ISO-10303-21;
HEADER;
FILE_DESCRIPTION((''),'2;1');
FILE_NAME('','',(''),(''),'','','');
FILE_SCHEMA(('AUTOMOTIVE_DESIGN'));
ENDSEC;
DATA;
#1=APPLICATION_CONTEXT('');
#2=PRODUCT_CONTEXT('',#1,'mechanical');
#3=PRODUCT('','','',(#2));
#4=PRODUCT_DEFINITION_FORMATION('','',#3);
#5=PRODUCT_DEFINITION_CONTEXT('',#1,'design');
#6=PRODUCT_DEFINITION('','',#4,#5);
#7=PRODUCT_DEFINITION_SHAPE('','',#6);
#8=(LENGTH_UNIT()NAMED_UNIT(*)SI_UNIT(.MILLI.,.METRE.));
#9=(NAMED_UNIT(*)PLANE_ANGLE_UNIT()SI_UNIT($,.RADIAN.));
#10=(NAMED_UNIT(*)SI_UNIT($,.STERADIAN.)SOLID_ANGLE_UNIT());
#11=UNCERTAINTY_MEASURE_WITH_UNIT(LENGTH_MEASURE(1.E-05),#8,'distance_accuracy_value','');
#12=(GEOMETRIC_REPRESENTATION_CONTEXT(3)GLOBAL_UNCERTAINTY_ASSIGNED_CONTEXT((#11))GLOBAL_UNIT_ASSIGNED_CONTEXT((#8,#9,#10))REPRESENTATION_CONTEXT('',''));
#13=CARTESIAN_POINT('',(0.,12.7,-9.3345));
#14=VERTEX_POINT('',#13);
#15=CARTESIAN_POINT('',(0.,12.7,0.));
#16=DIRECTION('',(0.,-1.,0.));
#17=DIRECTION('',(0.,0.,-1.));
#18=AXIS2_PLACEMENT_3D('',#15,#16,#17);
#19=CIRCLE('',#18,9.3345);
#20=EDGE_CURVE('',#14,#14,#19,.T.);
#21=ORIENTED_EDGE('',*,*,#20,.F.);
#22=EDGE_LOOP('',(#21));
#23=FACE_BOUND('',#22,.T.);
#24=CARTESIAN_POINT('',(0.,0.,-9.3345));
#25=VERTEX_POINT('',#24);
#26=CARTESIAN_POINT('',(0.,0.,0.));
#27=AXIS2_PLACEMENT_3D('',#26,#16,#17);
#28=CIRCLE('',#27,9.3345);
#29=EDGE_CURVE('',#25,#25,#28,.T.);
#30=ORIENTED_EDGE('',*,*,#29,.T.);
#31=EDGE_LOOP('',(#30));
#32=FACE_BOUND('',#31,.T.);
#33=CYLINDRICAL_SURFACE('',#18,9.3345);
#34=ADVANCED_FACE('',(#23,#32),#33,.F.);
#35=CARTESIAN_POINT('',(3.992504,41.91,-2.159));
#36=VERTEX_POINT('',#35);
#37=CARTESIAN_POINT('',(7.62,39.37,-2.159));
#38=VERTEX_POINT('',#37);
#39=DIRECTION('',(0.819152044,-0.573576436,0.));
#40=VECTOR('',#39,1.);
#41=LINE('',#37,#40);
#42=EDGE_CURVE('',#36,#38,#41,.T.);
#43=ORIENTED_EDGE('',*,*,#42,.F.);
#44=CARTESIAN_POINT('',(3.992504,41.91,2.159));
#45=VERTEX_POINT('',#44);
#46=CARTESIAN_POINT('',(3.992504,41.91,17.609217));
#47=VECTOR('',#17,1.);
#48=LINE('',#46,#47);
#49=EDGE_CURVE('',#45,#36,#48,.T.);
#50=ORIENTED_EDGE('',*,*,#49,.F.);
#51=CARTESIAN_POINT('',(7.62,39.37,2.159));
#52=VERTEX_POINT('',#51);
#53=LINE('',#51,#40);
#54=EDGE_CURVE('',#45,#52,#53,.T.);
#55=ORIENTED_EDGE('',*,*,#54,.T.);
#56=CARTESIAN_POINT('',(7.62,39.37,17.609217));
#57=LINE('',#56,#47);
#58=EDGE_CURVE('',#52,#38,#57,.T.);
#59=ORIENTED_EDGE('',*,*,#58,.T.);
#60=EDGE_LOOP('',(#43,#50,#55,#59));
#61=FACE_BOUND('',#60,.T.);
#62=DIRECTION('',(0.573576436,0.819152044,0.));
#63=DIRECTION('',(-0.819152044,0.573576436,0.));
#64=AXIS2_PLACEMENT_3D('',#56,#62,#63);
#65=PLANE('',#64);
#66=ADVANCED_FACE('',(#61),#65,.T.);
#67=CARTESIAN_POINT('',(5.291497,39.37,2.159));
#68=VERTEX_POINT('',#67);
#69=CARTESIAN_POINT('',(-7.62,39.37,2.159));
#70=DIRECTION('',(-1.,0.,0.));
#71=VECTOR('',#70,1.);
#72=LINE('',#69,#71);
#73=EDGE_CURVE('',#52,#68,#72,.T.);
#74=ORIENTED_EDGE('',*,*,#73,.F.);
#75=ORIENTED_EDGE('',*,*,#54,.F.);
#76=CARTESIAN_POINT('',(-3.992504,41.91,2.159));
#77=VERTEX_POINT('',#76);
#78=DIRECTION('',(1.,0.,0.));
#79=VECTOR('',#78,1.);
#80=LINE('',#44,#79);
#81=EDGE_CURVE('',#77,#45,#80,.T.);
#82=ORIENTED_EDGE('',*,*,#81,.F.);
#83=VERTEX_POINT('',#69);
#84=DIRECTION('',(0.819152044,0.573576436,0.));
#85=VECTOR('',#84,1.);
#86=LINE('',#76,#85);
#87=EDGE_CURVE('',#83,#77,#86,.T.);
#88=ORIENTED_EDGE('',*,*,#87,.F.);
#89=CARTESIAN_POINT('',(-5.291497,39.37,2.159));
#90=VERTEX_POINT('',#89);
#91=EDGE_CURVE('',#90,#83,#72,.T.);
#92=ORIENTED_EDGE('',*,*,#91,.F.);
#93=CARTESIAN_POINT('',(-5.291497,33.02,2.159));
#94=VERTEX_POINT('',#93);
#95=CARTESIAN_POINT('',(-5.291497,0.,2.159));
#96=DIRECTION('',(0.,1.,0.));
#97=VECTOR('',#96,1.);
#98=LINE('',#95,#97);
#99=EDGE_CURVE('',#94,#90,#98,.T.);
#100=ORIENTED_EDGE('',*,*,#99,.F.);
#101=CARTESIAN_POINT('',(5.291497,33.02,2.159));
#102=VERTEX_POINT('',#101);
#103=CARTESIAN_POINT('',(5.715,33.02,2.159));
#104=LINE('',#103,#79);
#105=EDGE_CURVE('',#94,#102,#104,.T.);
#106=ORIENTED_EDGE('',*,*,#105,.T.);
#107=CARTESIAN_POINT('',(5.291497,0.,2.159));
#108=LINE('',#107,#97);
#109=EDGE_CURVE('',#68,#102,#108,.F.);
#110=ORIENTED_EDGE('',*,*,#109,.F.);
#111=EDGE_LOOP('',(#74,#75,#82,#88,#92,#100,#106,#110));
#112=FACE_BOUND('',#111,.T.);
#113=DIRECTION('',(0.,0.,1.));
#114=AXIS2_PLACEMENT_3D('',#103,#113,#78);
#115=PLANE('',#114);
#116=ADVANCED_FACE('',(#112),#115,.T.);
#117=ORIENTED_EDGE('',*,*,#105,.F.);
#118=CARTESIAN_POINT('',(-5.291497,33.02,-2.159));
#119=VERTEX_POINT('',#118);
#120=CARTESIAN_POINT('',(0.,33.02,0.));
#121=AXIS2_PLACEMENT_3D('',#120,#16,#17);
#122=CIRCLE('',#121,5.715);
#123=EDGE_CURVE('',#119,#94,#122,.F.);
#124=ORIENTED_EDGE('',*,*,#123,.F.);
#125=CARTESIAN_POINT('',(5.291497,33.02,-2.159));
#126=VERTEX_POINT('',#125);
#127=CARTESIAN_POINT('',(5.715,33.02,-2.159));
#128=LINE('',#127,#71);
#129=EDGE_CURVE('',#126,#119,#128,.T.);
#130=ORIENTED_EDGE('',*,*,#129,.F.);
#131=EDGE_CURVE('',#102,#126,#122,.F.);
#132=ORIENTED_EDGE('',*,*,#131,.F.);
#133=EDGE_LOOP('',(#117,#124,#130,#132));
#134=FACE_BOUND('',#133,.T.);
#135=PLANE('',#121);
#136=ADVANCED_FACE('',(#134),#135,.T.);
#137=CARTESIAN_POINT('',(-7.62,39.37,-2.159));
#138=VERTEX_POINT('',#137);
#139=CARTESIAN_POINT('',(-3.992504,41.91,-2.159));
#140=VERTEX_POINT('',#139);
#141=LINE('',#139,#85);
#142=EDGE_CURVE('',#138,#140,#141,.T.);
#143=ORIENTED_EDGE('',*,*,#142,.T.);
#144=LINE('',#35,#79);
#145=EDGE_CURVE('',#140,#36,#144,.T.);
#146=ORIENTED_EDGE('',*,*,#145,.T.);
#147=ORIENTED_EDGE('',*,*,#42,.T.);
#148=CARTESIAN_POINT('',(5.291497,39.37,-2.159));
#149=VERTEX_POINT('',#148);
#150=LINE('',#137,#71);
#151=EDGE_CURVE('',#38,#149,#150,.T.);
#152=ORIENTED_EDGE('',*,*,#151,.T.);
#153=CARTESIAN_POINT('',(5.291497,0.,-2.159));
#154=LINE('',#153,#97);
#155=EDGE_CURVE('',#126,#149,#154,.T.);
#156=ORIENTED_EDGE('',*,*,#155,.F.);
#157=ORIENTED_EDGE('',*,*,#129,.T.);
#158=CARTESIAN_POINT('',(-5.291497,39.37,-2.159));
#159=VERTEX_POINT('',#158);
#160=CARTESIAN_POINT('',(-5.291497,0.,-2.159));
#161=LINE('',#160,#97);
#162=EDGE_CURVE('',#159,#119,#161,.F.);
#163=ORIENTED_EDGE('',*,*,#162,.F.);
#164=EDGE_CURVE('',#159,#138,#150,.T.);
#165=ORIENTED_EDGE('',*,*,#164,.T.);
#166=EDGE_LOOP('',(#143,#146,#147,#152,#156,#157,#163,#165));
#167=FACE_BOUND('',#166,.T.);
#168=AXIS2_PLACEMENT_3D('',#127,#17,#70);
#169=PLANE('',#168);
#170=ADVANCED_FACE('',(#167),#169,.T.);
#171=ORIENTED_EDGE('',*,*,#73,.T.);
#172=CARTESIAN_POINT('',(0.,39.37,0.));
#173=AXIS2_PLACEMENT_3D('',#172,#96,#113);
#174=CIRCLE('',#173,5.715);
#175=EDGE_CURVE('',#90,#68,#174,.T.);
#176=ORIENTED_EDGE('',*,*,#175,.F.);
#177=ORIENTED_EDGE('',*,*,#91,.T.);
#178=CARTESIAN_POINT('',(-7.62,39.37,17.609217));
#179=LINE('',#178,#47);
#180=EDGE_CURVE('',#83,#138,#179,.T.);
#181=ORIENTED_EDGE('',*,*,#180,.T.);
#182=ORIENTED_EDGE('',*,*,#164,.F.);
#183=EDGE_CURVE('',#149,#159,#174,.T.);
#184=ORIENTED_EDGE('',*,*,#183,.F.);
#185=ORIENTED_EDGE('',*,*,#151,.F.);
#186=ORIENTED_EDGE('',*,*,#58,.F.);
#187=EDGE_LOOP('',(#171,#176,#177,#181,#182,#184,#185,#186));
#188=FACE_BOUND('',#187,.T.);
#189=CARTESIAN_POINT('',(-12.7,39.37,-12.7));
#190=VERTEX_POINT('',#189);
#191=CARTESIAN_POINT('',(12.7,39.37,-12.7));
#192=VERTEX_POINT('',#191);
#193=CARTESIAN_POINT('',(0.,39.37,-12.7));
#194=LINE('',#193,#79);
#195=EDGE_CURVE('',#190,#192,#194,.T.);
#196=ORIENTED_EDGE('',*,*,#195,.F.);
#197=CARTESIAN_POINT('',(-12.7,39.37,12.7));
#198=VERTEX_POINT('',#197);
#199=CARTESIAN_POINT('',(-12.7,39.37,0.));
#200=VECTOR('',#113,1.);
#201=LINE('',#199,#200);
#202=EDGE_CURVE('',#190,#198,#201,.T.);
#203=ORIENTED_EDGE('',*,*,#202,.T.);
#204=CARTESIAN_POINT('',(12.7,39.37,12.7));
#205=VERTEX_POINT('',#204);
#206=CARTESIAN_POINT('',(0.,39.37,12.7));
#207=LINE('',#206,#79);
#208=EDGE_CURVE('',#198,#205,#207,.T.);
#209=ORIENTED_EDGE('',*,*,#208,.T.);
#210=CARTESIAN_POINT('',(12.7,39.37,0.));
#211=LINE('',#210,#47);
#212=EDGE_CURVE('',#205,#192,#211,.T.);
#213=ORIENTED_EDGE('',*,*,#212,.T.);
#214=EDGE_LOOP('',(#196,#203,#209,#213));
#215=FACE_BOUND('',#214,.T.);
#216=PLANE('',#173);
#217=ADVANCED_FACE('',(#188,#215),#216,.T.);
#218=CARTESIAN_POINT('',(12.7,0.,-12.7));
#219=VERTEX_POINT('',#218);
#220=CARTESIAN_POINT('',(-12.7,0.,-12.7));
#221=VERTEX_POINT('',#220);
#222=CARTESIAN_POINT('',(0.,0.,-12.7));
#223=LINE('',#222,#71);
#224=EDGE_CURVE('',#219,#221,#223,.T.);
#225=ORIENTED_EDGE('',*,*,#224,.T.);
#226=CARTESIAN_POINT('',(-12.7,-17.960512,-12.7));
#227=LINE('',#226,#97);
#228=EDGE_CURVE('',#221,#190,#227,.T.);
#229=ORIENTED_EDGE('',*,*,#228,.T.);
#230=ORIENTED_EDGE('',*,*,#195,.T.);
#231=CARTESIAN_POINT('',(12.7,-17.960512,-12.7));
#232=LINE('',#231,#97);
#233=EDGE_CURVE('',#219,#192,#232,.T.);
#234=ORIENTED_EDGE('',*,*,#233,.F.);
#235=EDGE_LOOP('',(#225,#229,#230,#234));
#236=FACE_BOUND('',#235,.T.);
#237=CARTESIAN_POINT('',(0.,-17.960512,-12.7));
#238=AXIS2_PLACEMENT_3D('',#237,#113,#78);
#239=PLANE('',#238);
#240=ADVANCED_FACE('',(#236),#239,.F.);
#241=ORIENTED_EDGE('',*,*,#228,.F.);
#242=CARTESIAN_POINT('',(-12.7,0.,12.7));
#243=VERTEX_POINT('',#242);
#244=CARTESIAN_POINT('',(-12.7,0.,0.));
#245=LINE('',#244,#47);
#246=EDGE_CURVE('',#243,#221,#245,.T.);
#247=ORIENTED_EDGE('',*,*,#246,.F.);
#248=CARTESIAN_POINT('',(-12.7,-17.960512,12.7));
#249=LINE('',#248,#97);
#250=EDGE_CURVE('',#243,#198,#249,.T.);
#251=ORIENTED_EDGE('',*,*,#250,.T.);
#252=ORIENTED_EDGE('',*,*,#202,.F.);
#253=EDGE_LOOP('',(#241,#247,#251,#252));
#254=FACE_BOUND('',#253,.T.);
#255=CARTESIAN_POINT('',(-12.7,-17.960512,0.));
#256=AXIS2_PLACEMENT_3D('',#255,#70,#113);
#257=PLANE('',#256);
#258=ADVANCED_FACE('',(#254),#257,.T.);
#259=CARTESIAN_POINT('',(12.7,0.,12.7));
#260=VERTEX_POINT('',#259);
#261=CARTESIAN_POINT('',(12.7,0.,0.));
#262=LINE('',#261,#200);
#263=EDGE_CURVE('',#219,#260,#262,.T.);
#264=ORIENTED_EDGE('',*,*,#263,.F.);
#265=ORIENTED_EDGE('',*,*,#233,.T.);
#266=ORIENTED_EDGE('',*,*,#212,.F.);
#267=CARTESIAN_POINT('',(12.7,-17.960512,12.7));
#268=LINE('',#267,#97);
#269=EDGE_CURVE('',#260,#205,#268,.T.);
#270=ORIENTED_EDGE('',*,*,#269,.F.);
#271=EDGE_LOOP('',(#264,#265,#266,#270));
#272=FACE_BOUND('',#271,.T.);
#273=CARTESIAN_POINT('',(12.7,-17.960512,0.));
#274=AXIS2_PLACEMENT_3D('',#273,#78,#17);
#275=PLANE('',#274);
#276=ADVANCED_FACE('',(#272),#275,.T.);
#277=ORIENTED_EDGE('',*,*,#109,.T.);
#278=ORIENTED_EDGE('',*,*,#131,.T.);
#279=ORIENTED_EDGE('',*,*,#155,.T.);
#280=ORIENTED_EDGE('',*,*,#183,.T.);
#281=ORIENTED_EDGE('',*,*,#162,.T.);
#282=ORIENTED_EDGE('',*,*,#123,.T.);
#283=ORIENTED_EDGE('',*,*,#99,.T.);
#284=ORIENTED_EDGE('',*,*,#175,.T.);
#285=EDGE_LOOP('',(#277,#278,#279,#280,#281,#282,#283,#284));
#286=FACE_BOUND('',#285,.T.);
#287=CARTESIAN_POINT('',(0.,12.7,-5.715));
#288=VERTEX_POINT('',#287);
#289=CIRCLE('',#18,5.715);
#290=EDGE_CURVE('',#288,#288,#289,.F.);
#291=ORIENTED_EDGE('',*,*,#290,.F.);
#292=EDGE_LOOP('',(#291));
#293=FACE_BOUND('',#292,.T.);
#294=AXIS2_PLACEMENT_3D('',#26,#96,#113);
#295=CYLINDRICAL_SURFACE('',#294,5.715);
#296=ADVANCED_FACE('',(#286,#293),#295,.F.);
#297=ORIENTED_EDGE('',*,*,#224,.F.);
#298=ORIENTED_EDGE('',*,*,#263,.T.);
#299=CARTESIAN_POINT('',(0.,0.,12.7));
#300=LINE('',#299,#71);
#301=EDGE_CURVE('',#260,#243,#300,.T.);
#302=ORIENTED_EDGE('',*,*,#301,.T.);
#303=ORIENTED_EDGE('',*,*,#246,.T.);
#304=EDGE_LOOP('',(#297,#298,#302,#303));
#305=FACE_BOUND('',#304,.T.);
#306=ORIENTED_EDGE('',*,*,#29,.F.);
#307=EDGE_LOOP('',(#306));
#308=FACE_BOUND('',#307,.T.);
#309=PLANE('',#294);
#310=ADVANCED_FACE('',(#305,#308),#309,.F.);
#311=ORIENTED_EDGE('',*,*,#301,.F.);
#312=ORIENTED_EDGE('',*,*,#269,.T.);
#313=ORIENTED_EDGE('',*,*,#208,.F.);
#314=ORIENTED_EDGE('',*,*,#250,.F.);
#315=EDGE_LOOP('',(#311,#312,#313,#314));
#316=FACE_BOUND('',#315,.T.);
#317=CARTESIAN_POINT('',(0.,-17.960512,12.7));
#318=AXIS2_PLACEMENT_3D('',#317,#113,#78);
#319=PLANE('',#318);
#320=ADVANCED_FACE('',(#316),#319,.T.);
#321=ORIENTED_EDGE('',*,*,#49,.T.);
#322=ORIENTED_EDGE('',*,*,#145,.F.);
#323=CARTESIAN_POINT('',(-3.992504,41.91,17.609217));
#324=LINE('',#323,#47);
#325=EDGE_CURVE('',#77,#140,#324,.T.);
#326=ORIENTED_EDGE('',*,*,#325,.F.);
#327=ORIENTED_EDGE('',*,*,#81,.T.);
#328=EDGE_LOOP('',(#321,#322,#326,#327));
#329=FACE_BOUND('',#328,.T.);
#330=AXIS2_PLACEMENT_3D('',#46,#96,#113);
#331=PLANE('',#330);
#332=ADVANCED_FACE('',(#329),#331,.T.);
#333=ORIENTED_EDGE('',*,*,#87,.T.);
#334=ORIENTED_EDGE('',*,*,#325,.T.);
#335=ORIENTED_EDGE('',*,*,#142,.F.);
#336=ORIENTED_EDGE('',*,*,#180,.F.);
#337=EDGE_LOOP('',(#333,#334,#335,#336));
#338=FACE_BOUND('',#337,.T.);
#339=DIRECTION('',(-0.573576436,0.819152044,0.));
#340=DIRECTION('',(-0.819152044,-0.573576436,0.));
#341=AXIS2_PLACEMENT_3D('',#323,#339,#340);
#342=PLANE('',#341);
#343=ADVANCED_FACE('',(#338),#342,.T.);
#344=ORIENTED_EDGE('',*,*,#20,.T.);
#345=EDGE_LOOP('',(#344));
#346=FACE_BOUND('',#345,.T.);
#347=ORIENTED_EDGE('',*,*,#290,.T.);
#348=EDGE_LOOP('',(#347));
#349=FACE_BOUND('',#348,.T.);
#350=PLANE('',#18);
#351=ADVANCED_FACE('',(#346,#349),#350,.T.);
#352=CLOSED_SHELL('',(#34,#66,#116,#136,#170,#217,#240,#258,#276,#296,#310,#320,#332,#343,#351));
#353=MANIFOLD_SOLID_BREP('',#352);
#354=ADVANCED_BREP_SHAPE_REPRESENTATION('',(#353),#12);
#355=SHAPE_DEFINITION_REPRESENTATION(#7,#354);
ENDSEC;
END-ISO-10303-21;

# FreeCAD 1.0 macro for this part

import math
import FreeCAD as App
import Part
import Sketcher

V = App.Vector
Q = App.Units.Quantity

doc = App.newDocument("Part")
body = doc.addObject("PartDesign::Body", "Body")

# Sketch on XZ plane
sketch1 = body.newObject("Sketcher::SketchObject", "Sketch")
sketch1.AttachmentSupport = (doc.getObject("XZ_Plane"), [""])
sketch1.MapMode = "FlatFace"
sketch1.addGeometry(Part.Circle(V(0, 0, 0), V(0, 0, 1), 13), False)
sketch1.addConstraint(Sketcher.Constraint("Coincident", 0, 3, -1, 1))
sketch1.addConstraint(Sketcher.Constraint("Diameter", 0, Q("1 in")))
pad1 = body.newObject("PartDesign::Pad", "Pad")
pad1.Profile = sketch1
pad1.Length = Q("1.5 in")
pad1.Reversed = True

# Sketch on XZ plane
sketch2 = body.newObject("Sketcher::SketchObject", "Sketch001")
sketch2.AttachmentSupport = (doc.getObject("XZ_Plane"), [""])
sketch2.MapMode = "FlatFace"
sketch2.AttachmentOffset = App.Placement(V(0, 0, -1.5 * 25.4), App.Rotation())
sketch2.addGeometry(Part.Circle(V(0, 0, 0), V(0, 0, 1), 6), False)
sketch2.addConstraint(Sketcher.Constraint("Coincident", 0, 3, -1, 1))
sketch2.addConstraint(Sketcher.Constraint("Diameter", 0, Q("0.45 in")))
pocket1 = body.newObject("PartDesign::Pocket", "Pocket")
pocket1.Profile = sketch2
pocket1.Type = "ThroughAll"
pocket1.Reversed = True

# Sketch on XZ plane
sketch3 = body.newObject("Sketcher::SketchObject", "Sketch002")
sketch3.AttachmentSupport = (doc.getObject("XZ_Plane"), [""])
sketch3.MapMode = "FlatFace"
sketch3.addGeometry(Part.Circle(V(0, 0, 0), V(0, 0, 1), 9), False)
sketch3.addConstraint(Sketcher.Constraint("Coincident", 0, 3, -1, 1))
sketch3.addConstraint(Sketcher.Constraint("Diameter", 0, Q("0.735 in")))
pocket2 = body.newObject("PartDesign::Pocket", "Pocket001")
pocket2.Profile = sketch3
pocket2.Length = Q("0.5 in")

# Sketch on XZ plane
sketch4 = body.newObject("Sketcher::SketchObject", "Sketch003")
sketch4.AttachmentSupport = (doc.getObject("XZ_Plane"), [""])
sketch4.MapMode = "FlatFace"
sketch4.AttachmentOffset = App.Placement(V(0, 0, -1.5 * 25.4), App.Rotation())
sketch4.addGeometry(Part.Circle(V(0, 0, 0), V(0, 0, 1), 13), False)
sketch4.addGeometry(Part.Circle(V(0, 0, 0), V(0, 0, 1), 6), False)
sketch4.addConstraint(Sketcher.Constraint("Coincident", 0, 3, -1, 1))
sketch4.addConstraint(Sketcher.Constraint("Coincident", 1, 3, -1, 1))
sketch4.addConstraint(Sketcher.Constraint("Diameter", 0, Q("1 in")))
sketch4.addConstraint(Sketcher.Constraint("Diameter", 1, Q("0.45 in")))
pad2 = body.newObject("PartDesign::Pad", "Pad001")
pad2.Profile = sketch4
pad2.Length = Q("0.05 in")
pad2.Reversed = True

# Sketch on XZ plane
sketch5 = body.newObject("Sketcher::SketchObject", "Sketch004")
sketch5.AttachmentSupport = (doc.getObject("XZ_Plane"), [""])
sketch5.MapMode = "FlatFace"
sketch5.AttachmentOffset = App.Placement(V(0, 0, -1.55 * 25.4), App.Rotation())
sketch5.addGeometry(Part.LineSegment(V(-5.7, -2.2, 0), V(-5.7, 2.2, 0)), False)
sketch5.addGeometry(Part.LineSegment(V(-5.7, 2.2, 0), V(5.7, 2.2, 0)), False)
sketch5.addGeometry(Part.LineSegment(V(5.7, 2.2, 0), V(5.7, -2.2, 0)), False)
sketch5.addGeometry(Part.LineSegment(V(5.7, -2.2, 0), V(-5.7, -2.2, 0)), False)
sketch5.addConstraint(Sketcher.Constraint("Coincident", 0, 2, 1, 1))
sketch5.addConstraint(Sketcher.Constraint("Coincident", 1, 2, 2, 1))
sketch5.addConstraint(Sketcher.Constraint("Coincident", 2, 2, 3, 1))
sketch5.addConstraint(Sketcher.Constraint("Coincident", 3, 2, 0, 1))
sketch5.addConstraint(Sketcher.Constraint("Vertical", 0))
sketch5.addConstraint(Sketcher.Constraint("Horizontal", 1))
sketch5.addConstraint(Sketcher.Constraint("Vertical", 2))
sketch5.addConstraint(Sketcher.Constraint("Horizontal", 3))
sketch5.addConstraint(Sketcher.Constraint("Symmetric", 0, 2, 2, 2, -1, 1))
sketch5.addConstraint(Sketcher.Constraint("DistanceX", 1, 1, 1, 2, Q("0.45 in")))
sketch5.addConstraint(Sketcher.Constraint("DistanceY", 0, 1, 0, 2, Q("0.17 in")))
pad3 = body.newObject("PartDesign::Pad", "Pad002")
pad3.Profile = sketch5
pad3.Length = Q("0.25 in")

# Sketch on XY plane
sketch6 = body.newObject("Sketcher::SketchObject", "Sketch005")
sketch6.AttachmentSupport = (doc.getObject("XY_Plane"), [""])
sketch6.MapMode = "FlatFace"
sketch6.AttachmentOffset = App.Placement(V(0, 0, -0.085 * 25.4), App.Rotation())
sketch6.addGeometry(Part.LineSegment(V(7.6, 39.4, 0), V(-7.6, 39.4, 0)), False)
sketch6.addGeometry(Part.LineSegment(V(-7.6, 39.4, 0), V(-4, 41.9, 0)), False)
sketch6.addGeometry(Part.LineSegment(V(-4, 41.9, 0), V(4, 41.9, 0)), False)
sketch6.addGeometry(Part.LineSegment(V(4, 41.9, 0), V(7.6, 39.4, 0)), False)
sketch6.addConstraint(Sketcher.Constraint("Coincident", 0, 2, 1, 1))
sketch6.addConstraint(Sketcher.Constraint("Coincident", 1, 2, 2, 1))
sketch6.addConstraint(Sketcher.Constraint("Coincident", 2, 2, 3, 1))
sketch6.addConstraint(Sketcher.Constraint("Coincident", 3, 2, 0, 1))
sketch6.addConstraint(Sketcher.Constraint("Horizontal", 0))
sketch6.addConstraint(Sketcher.Constraint("Horizontal", 2))
sketch6.addConstraint(Sketcher.Constraint("Equal", 1, 3))
sketch6.addConstraint(Sketcher.Constraint("DistanceX", 0, 2, 0, 1, Q("0.6 in")))
sketch6.addConstraint(Sketcher.Constraint("Angle", 1, Q("35 deg")))
sketch6.addConstraint(Sketcher.Constraint("DistanceX", 0, 2, -1, 1, Q("0.3 in")))
sketch6.addConstraint(Sketcher.Constraint("DistanceY", 0, 2, 1, 2, Q("0.1 in")))
sketch6.addConstraint(Sketcher.Constraint("DistanceY", -1, 1, 0, 2, Q("1.55 in")))
pad4 = body.newObject("PartDesign::Pad", "Pad003")
pad4.Profile = sketch6
pad4.Length = Q("0.17 in")

# Sketch on XZ plane
sketch7 = body.newObject("Sketcher::SketchObject", "Sketch006")
sketch7.AttachmentSupport = (doc.getObject("XZ_Plane"), [""])
sketch7.MapMode = "FlatFace"
sketch7.addGeometry(Part.ArcOfCircle(Part.Circle(V(0, 0, 0), V(0, 0, 1), 13), math.radians(0), math.radians(90)), False)
sketch7.addGeometry(Part.LineSegment(V(0, 13, 0), V(13, 13, 0)), False)
sketch7.addGeometry(Part.LineSegment(V(13, 13, 0), V(13, 0, 0)), False)
sketch7.addGeometry(Part.ArcOfCircle(Part.Circle(V(0, 0, 0), V(0, 0, 1), 13), math.radians(90), math.radians(180)), False)
sketch7.addGeometry(Part.LineSegment(V(-13, 0, 0), V(-13, 13, 0)), False)
sketch7.addGeometry(Part.LineSegment(V(-13, 13, 0), V(0, 13, 0)), False)
sketch7.addGeometry(Part.LineSegment(V(-13, -13, 0), V(-13, 0, 0)), False)
sketch7.addGeometry(Part.ArcOfCircle(Part.Circle(V(0, 0, 0), V(0, 0, 1), 13), math.radians(180), math.radians(270)), False)
sketch7.addGeometry(Part.LineSegment(V(0, -13, 0), V(-13, -13, 0)), False)
sketch7.addGeometry(Part.LineSegment(V(13, -13, 0), V(0, -13, 0)), False)
sketch7.addGeometry(Part.ArcOfCircle(Part.Circle(V(0, 0, 0), V(0, 0, 1), 13), math.radians(-90), math.radians(0)), False)
sketch7.addGeometry(Part.LineSegment(V(13, 0, 0), V(13, -13, 0)), False)
sketch7.addConstraint(Sketcher.Constraint("Tangent", 0, 2, 1, 1))
sketch7.addConstraint(Sketcher.Constraint("Coincident", 1, 2, 2, 1))
sketch7.addConstraint(Sketcher.Constraint("Tangent", 2, 2, 0, 1))
sketch7.addConstraint(Sketcher.Constraint("Tangent", 3, 2, 4, 1))
sketch7.addConstraint(Sketcher.Constraint("Coincident", 4, 2, 5, 1))
sketch7.addConstraint(Sketcher.Constraint("Tangent", 5, 2, 3, 1))
sketch7.addConstraint(Sketcher.Constraint("Tangent", 6, 2, 7, 1))
sketch7.addConstraint(Sketcher.Constraint("Tangent", 7, 2, 8, 1))
sketch7.addConstraint(Sketcher.Constraint("Coincident", 8, 2, 6, 1))
sketch7.addConstraint(Sketcher.Constraint("Tangent", 9, 2, 10, 1))
sketch7.addConstraint(Sketcher.Constraint("Tangent", 10, 2, 11, 1))
sketch7.addConstraint(Sketcher.Constraint("Coincident", 11, 2, 9, 1))
sketch7.addConstraint(Sketcher.Constraint("Horizontal", 1))
sketch7.addConstraint(Sketcher.Constraint("Vertical", 2))
sketch7.addConstraint(Sketcher.Constraint("Vertical", 4))
sketch7.addConstraint(Sketcher.Constraint("Horizontal", 5))
sketch7.addConstraint(Sketcher.Constraint("Vertical", 6))
sketch7.addConstraint(Sketcher.Constraint("Horizontal", 8))
sketch7.addConstraint(Sketcher.Constraint("Horizontal", 9))
sketch7.addConstraint(Sketcher.Constraint("Vertical", 11))
sketch7.addConstraint(Sketcher.Constraint("Coincident", 0, 3, -1, 1))
sketch7.addConstraint(Sketcher.Constraint("Coincident", 3, 3, -1, 1))
sketch7.addConstraint(Sketcher.Constraint("Coincident", 7, 3, -1, 1))
sketch7.addConstraint(Sketcher.Constraint("Coincident", 10, 3, -1, 1))
sketch7.addConstraint(Sketcher.Constraint("Equal", 0, 3))
sketch7.addConstraint(Sketcher.Constraint("Equal", 3, 7))
sketch7.addConstraint(Sketcher.Constraint("Equal", 7, 10))
sketch7.addConstraint(Sketcher.Constraint("Radius", 0, Q("0.5 in")))
pad5 = body.newObject("PartDesign::Pad", "Pad004")
pad5.Profile = sketch7
pad5.Length = Q("1.55 in")
pad5.Reversed = True

doc.recompute()
